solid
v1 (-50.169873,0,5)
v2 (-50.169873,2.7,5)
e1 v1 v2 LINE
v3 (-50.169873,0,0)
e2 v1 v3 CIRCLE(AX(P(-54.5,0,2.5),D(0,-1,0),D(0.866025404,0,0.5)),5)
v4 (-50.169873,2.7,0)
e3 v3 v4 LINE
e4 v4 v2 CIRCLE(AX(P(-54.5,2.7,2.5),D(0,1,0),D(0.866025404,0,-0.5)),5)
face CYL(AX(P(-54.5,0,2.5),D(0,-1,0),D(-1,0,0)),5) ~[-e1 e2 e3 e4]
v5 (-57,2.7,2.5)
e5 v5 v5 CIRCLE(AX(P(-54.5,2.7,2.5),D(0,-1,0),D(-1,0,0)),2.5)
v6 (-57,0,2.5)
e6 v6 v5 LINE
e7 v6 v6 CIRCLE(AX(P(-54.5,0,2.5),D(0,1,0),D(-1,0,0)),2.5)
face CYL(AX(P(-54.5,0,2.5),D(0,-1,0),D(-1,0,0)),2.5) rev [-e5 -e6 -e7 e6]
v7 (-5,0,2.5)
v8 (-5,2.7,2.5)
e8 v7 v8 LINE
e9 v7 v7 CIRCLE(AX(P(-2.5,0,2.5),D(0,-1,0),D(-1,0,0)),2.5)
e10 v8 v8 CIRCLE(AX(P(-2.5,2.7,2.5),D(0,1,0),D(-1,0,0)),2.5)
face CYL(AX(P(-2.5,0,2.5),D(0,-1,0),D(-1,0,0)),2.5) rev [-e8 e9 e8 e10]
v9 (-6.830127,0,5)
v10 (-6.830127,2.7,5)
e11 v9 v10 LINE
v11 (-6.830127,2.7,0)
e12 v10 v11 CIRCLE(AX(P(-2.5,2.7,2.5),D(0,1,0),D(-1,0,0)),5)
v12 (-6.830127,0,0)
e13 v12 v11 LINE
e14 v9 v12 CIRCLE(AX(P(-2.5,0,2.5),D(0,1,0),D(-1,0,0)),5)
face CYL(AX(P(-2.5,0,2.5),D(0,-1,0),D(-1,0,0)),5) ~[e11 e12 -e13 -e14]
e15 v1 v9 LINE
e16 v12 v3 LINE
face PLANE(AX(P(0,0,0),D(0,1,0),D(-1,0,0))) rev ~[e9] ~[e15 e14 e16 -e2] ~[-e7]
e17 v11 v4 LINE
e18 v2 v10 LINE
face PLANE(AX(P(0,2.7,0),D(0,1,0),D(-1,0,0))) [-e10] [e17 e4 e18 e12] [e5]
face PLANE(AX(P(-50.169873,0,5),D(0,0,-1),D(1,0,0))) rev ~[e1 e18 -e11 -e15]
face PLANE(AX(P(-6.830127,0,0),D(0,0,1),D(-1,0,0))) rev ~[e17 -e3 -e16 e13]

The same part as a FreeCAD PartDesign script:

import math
import FreeCAD as App
import Part
import Sketcher
from FreeCAD import Vector
Q = App.Units.Quantity

doc = App.newDocument("Part")
body = doc.addObject("PartDesign::Body", "Body")

# Sketch on XZ plane
sketch1 = body.newObject("Sketcher::SketchObject", "Sketch")
sketch1.AttachmentSupport = (doc.getObject("XZ_Plane"), [""])
sketch1.MapMode = "FlatFace"
sketch1.addGeometry([
    Part.ArcOfCircle(Part.Circle(Vector(-2.5, 2.5, 0), Vector(0, 0, 1), 5), math.radians(-150), math.radians(150)),  # 0
    Part.LineSegment(Vector(-6.830127, 0, 0), Vector(-50.169873, 0, 0)),  # 1
    Part.ArcOfCircle(Part.Circle(Vector(-54.5, 2.5, 0), Vector(0, 0, 1), 5), math.radians(30), math.radians(330)),  # 2
    Part.LineSegment(Vector(-50.169873, 5, 0), Vector(-6.830127, 5, 0)),  # 3
    Part.Circle(Vector(-2.5, 2.5, 0), Vector(0, 0, 1), 2.5),  # 4
    Part.Circle(Vector(-54.5, 2.5, 0), Vector(0, 0, 1), 2.5),  # 5
], False)
sketch1.addConstraint([
    Sketcher.Constraint("Coincident", 0, 1, 1, 1),
    Sketcher.Constraint("Coincident", 1, 2, 2, 2),
    Sketcher.Constraint("Coincident", 2, 1, 3, 1),
    Sketcher.Constraint("Coincident", 3, 2, 0, 2),
    Sketcher.Constraint("Horizontal", 1),
    Sketcher.Constraint("Horizontal", 3),
    Sketcher.Constraint("Coincident", 4, 3, 0, 3),
    Sketcher.Constraint("Coincident", 5, 3, 2, 3),
    Sketcher.Constraint("Equal", 0, 2),
    Sketcher.Constraint("Equal", 4, 5),
    Sketcher.Constraint("PointOnObject", 0, 1, -1),
    Sketcher.Constraint("Horizontal", 0, 3, 2, 3),
    Sketcher.Constraint("Vertical", 1, 2, 2, 1),
    Sketcher.Constraint("Diameter", 4, Q("5 mm")),
    Sketcher.Constraint("Radius", 0, Q("5 mm")),
    Sketcher.Constraint("DistanceY", -1, 1, 2, 1, Q("5 mm")),
    Sketcher.Constraint("DistanceX", 2, 3, 0, 3, Q("52 mm")),
    Sketcher.Constraint("DistanceX", 0, 3, -1, 1, Q("2.5 mm")),
])
pad1 = body.newObject("PartDesign::Pad", "Pad")
pad1.Profile = sketch1
pad1.Length = 2.7
pad1.Reversed = True

doc.recompute()
